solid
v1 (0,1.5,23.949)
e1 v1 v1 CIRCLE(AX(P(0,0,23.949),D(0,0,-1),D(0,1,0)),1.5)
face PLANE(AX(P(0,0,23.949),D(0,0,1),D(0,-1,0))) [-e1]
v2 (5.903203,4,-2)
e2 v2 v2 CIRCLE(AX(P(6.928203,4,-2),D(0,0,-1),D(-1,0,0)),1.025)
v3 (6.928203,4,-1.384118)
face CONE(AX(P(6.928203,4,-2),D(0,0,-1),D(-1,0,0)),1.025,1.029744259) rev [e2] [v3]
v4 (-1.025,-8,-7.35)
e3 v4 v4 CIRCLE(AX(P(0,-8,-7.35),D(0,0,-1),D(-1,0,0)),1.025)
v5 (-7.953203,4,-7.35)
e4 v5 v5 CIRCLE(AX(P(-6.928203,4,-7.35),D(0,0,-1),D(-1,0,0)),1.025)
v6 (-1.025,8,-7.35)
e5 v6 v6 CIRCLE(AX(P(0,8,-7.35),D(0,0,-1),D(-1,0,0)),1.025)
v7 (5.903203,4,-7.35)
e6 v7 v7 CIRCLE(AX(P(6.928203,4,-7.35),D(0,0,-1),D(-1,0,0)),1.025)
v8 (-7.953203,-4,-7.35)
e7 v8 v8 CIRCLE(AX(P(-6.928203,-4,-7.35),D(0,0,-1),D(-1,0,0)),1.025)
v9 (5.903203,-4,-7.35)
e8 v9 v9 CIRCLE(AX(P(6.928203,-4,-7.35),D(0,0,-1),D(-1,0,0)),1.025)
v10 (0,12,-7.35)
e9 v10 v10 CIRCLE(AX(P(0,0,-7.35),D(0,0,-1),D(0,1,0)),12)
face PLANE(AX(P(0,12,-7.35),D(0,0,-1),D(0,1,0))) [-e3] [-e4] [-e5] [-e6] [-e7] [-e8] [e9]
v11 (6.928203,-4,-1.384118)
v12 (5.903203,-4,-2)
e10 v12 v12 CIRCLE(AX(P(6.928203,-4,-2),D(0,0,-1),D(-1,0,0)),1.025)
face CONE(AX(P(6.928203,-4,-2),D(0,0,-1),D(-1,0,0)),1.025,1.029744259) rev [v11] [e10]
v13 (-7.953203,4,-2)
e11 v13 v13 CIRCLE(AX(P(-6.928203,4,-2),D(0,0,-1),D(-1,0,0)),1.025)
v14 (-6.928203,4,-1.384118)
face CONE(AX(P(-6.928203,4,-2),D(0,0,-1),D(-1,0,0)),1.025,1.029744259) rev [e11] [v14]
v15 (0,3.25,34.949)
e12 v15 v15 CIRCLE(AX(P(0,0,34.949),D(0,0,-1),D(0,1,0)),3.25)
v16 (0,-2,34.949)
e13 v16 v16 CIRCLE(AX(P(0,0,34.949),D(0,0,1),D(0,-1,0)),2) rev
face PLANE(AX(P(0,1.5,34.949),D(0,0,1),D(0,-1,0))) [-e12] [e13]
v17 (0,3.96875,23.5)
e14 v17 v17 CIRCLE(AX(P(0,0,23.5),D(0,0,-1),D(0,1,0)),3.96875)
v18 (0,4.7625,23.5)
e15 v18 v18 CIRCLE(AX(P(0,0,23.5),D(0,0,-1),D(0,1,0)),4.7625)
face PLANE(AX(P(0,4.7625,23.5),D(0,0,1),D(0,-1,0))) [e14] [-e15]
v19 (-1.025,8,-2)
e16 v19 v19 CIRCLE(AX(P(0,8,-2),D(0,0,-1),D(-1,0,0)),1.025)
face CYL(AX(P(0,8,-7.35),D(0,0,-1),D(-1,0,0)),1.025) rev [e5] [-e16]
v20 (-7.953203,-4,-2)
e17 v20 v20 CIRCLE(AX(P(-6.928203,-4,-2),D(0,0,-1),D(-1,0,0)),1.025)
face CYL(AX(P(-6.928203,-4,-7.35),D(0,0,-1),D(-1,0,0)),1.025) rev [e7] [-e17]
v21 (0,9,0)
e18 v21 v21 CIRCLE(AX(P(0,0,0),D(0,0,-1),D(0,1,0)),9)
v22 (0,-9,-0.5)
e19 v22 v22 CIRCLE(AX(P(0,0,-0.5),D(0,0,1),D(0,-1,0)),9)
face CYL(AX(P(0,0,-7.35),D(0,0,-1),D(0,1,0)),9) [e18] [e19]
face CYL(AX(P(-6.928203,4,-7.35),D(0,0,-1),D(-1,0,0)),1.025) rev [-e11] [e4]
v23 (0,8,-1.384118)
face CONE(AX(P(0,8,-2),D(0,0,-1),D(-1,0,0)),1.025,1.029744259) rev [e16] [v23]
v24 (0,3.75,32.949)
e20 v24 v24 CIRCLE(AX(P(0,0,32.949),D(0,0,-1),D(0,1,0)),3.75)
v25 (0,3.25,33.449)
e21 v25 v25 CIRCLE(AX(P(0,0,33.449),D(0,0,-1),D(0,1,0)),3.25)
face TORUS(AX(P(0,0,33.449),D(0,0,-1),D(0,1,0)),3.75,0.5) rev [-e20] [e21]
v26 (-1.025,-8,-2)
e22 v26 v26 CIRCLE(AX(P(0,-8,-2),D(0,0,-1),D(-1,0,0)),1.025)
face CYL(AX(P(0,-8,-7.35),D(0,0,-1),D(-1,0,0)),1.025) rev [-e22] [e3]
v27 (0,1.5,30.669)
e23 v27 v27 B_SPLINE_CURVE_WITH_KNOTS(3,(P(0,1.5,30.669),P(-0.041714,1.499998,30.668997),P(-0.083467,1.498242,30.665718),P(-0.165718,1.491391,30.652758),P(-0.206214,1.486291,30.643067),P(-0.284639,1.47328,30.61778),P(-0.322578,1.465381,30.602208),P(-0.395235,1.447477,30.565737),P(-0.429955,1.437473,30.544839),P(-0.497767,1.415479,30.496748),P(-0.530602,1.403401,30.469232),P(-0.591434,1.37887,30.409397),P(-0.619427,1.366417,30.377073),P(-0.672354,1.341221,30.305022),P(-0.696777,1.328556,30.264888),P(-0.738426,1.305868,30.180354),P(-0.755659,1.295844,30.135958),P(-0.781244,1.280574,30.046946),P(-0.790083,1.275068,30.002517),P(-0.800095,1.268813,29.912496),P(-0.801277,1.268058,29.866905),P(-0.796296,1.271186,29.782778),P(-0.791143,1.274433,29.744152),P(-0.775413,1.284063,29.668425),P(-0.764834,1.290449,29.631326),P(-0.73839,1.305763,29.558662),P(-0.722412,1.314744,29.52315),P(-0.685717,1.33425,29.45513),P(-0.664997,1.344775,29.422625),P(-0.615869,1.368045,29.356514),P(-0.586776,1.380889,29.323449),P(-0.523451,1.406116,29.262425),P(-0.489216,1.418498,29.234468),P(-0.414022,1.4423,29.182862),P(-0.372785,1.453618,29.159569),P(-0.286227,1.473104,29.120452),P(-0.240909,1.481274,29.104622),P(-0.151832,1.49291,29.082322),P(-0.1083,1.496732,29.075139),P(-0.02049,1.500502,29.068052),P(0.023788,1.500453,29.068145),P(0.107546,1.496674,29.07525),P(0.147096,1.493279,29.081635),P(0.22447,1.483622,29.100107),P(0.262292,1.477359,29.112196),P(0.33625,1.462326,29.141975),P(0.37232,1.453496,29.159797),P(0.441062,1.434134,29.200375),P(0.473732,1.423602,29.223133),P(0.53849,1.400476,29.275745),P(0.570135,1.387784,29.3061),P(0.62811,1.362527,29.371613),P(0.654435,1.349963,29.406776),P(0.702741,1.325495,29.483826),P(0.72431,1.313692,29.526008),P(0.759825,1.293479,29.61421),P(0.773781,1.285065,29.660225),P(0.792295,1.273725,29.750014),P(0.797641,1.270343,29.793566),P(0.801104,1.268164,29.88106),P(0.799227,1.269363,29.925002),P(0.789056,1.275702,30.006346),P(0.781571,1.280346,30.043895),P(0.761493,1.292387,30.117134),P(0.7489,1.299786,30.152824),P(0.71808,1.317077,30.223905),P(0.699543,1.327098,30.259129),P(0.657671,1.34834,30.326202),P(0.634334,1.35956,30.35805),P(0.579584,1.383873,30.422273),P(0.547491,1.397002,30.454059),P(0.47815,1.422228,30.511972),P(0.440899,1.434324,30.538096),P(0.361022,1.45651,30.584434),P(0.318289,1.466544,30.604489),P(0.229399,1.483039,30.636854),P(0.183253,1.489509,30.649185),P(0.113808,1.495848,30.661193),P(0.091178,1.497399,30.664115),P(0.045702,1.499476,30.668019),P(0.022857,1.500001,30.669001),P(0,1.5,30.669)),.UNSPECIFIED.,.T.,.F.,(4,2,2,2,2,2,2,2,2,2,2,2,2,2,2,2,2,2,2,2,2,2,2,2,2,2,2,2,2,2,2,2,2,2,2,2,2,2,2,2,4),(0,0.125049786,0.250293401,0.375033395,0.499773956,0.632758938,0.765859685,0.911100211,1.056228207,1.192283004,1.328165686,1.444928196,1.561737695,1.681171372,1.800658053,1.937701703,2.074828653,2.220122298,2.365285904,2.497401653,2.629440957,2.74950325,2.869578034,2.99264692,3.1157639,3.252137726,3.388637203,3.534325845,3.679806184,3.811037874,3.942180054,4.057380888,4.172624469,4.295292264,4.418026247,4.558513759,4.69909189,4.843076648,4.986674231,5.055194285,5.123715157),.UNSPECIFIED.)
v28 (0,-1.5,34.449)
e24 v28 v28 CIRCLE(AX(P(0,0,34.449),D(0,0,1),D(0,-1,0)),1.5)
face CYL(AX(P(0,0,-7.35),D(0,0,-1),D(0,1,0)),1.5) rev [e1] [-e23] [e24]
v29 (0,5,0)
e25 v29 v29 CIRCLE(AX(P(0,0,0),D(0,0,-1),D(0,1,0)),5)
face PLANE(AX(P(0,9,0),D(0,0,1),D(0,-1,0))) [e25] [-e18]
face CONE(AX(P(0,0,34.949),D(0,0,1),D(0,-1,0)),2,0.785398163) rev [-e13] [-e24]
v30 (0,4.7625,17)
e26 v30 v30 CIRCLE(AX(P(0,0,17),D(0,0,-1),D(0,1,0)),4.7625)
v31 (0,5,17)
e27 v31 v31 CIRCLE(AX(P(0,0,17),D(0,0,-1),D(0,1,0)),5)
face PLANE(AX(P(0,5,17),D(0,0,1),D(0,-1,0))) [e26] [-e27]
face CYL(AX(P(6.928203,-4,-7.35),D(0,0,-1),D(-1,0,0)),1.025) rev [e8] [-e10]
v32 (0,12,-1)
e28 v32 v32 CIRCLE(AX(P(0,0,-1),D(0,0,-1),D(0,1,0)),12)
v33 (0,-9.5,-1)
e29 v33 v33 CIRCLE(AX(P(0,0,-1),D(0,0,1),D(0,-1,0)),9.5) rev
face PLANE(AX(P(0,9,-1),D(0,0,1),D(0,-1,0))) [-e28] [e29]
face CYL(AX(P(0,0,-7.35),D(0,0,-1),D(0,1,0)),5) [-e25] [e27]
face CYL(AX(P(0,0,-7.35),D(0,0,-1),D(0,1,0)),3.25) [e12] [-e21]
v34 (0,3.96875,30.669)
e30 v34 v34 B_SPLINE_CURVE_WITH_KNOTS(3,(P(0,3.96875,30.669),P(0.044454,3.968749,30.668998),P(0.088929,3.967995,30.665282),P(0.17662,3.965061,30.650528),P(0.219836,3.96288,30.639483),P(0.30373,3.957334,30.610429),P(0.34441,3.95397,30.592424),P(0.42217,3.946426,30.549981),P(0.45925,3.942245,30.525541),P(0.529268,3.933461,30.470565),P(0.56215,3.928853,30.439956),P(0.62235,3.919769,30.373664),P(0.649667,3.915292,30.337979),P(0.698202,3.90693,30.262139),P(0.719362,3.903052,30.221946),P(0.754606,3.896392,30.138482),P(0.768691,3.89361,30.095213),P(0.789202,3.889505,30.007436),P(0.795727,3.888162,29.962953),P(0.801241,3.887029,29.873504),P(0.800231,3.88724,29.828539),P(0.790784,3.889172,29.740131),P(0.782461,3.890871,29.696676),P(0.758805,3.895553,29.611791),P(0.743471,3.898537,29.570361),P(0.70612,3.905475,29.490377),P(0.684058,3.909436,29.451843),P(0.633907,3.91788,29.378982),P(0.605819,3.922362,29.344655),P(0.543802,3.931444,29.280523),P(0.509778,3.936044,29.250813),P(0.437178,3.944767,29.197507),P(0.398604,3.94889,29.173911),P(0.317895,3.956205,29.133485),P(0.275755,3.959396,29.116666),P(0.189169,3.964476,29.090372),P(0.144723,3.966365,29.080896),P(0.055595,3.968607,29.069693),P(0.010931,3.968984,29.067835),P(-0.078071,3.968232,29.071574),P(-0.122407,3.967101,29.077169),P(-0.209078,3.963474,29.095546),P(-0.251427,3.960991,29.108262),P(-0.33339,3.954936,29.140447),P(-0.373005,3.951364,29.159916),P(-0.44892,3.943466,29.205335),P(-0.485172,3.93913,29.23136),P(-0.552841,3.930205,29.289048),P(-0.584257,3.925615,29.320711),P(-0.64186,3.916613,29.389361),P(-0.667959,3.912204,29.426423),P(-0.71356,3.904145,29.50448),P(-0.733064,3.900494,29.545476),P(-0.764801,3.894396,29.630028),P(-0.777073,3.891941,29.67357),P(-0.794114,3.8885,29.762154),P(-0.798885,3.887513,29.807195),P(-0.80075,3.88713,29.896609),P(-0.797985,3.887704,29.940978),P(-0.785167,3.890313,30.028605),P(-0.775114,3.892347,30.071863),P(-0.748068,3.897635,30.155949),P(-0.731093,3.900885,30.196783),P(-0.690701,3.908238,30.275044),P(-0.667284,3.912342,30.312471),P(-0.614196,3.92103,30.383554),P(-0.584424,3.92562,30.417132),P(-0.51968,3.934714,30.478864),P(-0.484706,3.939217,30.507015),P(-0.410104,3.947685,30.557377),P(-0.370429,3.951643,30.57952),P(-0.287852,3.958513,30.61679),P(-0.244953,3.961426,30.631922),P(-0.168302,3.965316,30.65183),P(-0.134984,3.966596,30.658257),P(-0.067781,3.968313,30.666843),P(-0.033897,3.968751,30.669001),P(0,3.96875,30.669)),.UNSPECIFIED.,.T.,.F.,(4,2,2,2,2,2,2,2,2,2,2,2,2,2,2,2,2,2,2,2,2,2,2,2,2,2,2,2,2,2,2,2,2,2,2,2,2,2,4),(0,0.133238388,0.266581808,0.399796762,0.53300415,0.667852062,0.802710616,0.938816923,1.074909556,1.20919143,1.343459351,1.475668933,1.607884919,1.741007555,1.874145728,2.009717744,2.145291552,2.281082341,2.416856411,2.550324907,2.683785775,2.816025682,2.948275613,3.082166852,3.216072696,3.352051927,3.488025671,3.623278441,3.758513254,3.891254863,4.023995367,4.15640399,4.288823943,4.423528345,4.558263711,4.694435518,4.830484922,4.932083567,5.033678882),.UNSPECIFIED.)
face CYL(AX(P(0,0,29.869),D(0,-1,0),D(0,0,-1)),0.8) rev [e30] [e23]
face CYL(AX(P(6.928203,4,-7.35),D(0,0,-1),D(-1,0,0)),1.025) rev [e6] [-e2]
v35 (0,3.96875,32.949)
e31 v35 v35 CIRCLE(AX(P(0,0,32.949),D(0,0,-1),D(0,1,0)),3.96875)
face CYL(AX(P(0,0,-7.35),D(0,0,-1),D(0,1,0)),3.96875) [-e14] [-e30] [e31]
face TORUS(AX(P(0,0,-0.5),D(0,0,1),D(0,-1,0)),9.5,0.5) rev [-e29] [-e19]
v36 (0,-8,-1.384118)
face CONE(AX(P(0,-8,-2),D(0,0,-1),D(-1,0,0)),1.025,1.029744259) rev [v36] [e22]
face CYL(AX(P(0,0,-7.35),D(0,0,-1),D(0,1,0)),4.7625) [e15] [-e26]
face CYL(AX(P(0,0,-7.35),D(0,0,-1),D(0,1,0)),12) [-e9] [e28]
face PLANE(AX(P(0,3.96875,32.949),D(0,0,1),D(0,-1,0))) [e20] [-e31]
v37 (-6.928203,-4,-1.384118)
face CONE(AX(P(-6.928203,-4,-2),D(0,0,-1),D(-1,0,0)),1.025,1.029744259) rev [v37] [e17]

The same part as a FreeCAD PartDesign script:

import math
import FreeCAD as App
import Part
import Sketcher
Q = App.Units.Quantity


def edges_at(feature, points):
    """Names of the edges that pass closest to the given points."""
    edges = feature.Shape.Edges
    near = lambda p: min(range(len(edges)), key=lambda i: edges[i].distToShape(Part.Vertex(*p))[0])
    return sorted({f"Edge{near(p) + 1}" for p in points})


def add_polygon(sketch, points):
    """Adds a closed chain of lines whose ends are joined by coincident constraints."""
    first, n = sketch.GeometryCount, len(points)
    for a, b in zip(points, points[1:] + points[:1]):
        sketch.addGeometry(Part.LineSegment(App.Vector(*a, 0), App.Vector(*b, 0)), False)
    for i in range(n):
        sketch.addConstraint(Sketcher.Constraint("Coincident", first + i, 2, first + (i + 1) % n, 1))

doc = App.newDocument("Part")
body = doc.addObject("PartDesign::Body", "Body")

# Sketch on YZ plane
sketch1 = body.newObject("Sketcher::SketchObject", "Sketch")
sketch1.AttachmentSupport = (doc.getObject("YZ_Plane"), [""])
sketch1.MapMode = "FlatFace"
sketch1.addGeometry(Part.LineSegment(App.Vector(1.5, 23.95, 0), App.Vector(0, 23.95, 0)), False)
sketch1.addGeometry(Part.LineSegment(App.Vector(0, 23.95, 0), App.Vector(0, -7.35, 0)), False)
sketch1.addGeometry(Part.LineSegment(App.Vector(0, -7.35, 0), App.Vector(12, -7.35, 0)), False)
sketch1.addGeometry(Part.LineSegment(App.Vector(12, -7.35, 0), App.Vector(12, -1, 0)), False)
sketch1.addGeometry(Part.LineSegment(App.Vector(12, -1, 0), App.Vector(9, -1, 0)), False)
sketch1.addGeometry(Part.LineSegment(App.Vector(9, -1, 0), App.Vector(9, 0, 0)), False)
sketch1.addGeometry(Part.LineSegment(App.Vector(9, 0, 0), App.Vector(5, 0, 0)), False)
sketch1.addGeometry(Part.LineSegment(App.Vector(5, 0, 0), App.Vector(5, 17, 0)), False)
sketch1.addGeometry(Part.LineSegment(App.Vector(5, 17, 0), App.Vector(4.76, 17, 0)), False)
sketch1.addGeometry(Part.LineSegment(App.Vector(4.76, 17, 0), App.Vector(4.76, 23.5, 0)), False)
sketch1.addGeometry(Part.LineSegment(App.Vector(4.76, 23.5, 0), App.Vector(3.97, 23.5, 0)), False)
sketch1.addGeometry(Part.LineSegment(App.Vector(3.97, 23.5, 0), App.Vector(3.97, 32.95, 0)), False)
sketch1.addGeometry(Part.LineSegment(App.Vector(3.97, 32.95, 0), App.Vector(3.75, 32.95, 0)), False)
sketch1.addGeometry(Part.ArcOfCircle(Part.Circle(App.Vector(3.75, 33.45, 0), App.Vector(0, 0, 1), 0.5), math.radians(180), math.radians(270)), False)
sketch1.addGeometry(Part.LineSegment(App.Vector(3.25, 33.45, 0), App.Vector(3.25, 34.95, 0)), False)
sketch1.addGeometry(Part.LineSegment(App.Vector(3.25, 34.95, 0), App.Vector(1.5, 34.95, 0)), False)
sketch1.addGeometry(Part.LineSegment(App.Vector(1.5, 34.95, 0), App.Vector(1.5, 23.95, 0)), False)
sketch1.addConstraint(Sketcher.Constraint("Coincident", 0, 2, 1, 1))
sketch1.addConstraint(Sketcher.Constraint("Coincident", 1, 2, 2, 1))
sketch1.addConstraint(Sketcher.Constraint("Coincident", 2, 2, 3, 1))
sketch1.addConstraint(Sketcher.Constraint("Coincident", 3, 2, 4, 1))
sketch1.addConstraint(Sketcher.Constraint("Coincident", 4, 2, 5, 1))
sketch1.addConstraint(Sketcher.Constraint("Coincident", 5, 2, 6, 1))
sketch1.addConstraint(Sketcher.Constraint("Coincident", 6, 2, 7, 1))
sketch1.addConstraint(Sketcher.Constraint("Coincident", 7, 2, 8, 1))
sketch1.addConstraint(Sketcher.Constraint("Coincident", 8, 2, 9, 1))
sketch1.addConstraint(Sketcher.Constraint("Coincident", 9, 2, 10, 1))
sketch1.addConstraint(Sketcher.Constraint("Coincident", 10, 2, 11, 1))
sketch1.addConstraint(Sketcher.Constraint("Coincident", 11, 2, 12, 1))
sketch1.addConstraint(Sketcher.Constraint("Tangent", 12, 2, 13, 2))
sketch1.addConstraint(Sketcher.Constraint("Tangent", 13, 1, 14, 1))
sketch1.addConstraint(Sketcher.Constraint("Coincident", 14, 2, 15, 1))
sketch1.addConstraint(Sketcher.Constraint("Coincident", 15, 2, 16, 1))
sketch1.addConstraint(Sketcher.Constraint("Coincident", 16, 2, 0, 1))
sketch1.addConstraint(Sketcher.Constraint("Horizontal", 0))
sketch1.addConstraint(Sketcher.Constraint("Vertical", 1))
sketch1.addConstraint(Sketcher.Constraint("Horizontal", 2))
sketch1.addConstraint(Sketcher.Constraint("Vertical", 3))
sketch1.addConstraint(Sketcher.Constraint("Horizontal", 4))
sketch1.addConstraint(Sketcher.Constraint("Vertical", 5))
sketch1.addConstraint(Sketcher.Constraint("Horizontal", 6))
sketch1.addConstraint(Sketcher.Constraint("Vertical", 7))
sketch1.addConstraint(Sketcher.Constraint("Horizontal", 8))
sketch1.addConstraint(Sketcher.Constraint("Vertical", 9))
sketch1.addConstraint(Sketcher.Constraint("Horizontal", 10))
sketch1.addConstraint(Sketcher.Constraint("Vertical", 11))
sketch1.addConstraint(Sketcher.Constraint("Horizontal", 12))
sketch1.addConstraint(Sketcher.Constraint("Vertical", 14))
sketch1.addConstraint(Sketcher.Constraint("Horizontal", 15))
sketch1.addConstraint(Sketcher.Constraint("Vertical", 16))
sketch1.addConstraint(Sketcher.Constraint("PointOnObject", 0, 2, -2))
sketch1.addConstraint(Sketcher.Constraint("PointOnObject", 5, 2, -1))
sketch1.addConstraint(Sketcher.Constraint("Equal", 0, 14))
sketch1.addConstraint(Sketcher.Constraint("Radius", 13, Q("0.5 mm")))
sketch1.addConstraint(Sketcher.Constraint("DistanceX", 2, 1, 2, 2, Q("12 mm")))
sketch1.addConstraint(Sketcher.Constraint("DistanceX", 4, 2, 4, 1, Q("3 mm")))
sketch1.addConstraint(Sketcher.Constraint("DistanceX", 6, 2, 6, 1, Q("4 mm")))
sketch1.addConstraint(Sketcher.Constraint("DistanceY", 5, 1, 5, 2, Q("1 mm")))
sketch1.addConstraint(Sketcher.Constraint("DistanceY", 7, 1, 7, 2, Q("17 mm")))
sketch1.addConstraint(Sketcher.Constraint("DistanceY", 16, 2, 16, 1, Q("11 mm")))
sketch1.addConstraint(Sketcher.Constraint("DistanceX", 0, 2, 0, 1, Q("1.5 mm")))
sketch1.addConstraint(Sketcher.Constraint("DistanceY", 9, 1, 9, 2, Q("6.5 mm")))
sketch1.addConstraint(Sketcher.Constraint("DistanceX", 15, 2, 15, 1, Q("1.75 mm")))
sketch1.addConstraint(Sketcher.Constraint("DistanceY", 3, 1, 3, 2, Q("6.35 mm")))
sketch1.addConstraint(Sketcher.Constraint("DistanceY", 1, 2, 1, 1, Q("31.299 mm")))
sketch1.addConstraint(Sketcher.Constraint("DistanceX", 8, 2, 8, 1, Q("0.2375 mm")))
sketch1.addConstraint(Sketcher.Constraint("DistanceX", 10, 2, 10, 1, Q("0.79375 mm")))
revolution = body.newObject("PartDesign::Revolution", "Revolution")
revolution.Profile = sketch1
revolution.ReferenceAxis = (sketch1, ["V_Axis"])
revolution.Angle = 360

# Sketch on YZ plane
sketch2 = body.newObject("Sketcher::SketchObject", "Sketch001")
sketch2.AttachmentSupport = (doc.getObject("YZ_Plane"), [""])
sketch2.MapMode = "FlatFace"
add_polygon(sketch2, [(12, 29.9), (0, 29.9), (0, 29.1), (12, 29.1)])  # lines 0-3
sketch2.addGeometry(Part.LineSegment(App.Vector(0, 29.9, 0), App.Vector(12, 29.9, 0)), True)  # axis
sketch2.addConstraint(Sketcher.Constraint("Horizontal", 0))
sketch2.addConstraint(Sketcher.Constraint("Vertical", 1))
sketch2.addConstraint(Sketcher.Constraint("Horizontal", 2))
sketch2.addConstraint(Sketcher.Constraint("Vertical", 3))
sketch2.addConstraint(Sketcher.Constraint("Horizontal", 4))
sketch2.addConstraint(Sketcher.Constraint("Coincident", 4, 1, 0, 2))
sketch2.addConstraint(Sketcher.Constraint("PointOnObject", 0, 2, -2))
sketch2.addConstraint(Sketcher.Constraint("Vertical", 2, 2, 4, 2))
sketch2.addConstraint(Sketcher.Constraint("DistanceX", 0, 2, 0, 1, Q("12 mm")))
sketch2.addConstraint(Sketcher.Constraint("DistanceY", 1, 2, 1, 1, Q("0.8 mm")))
sketch2.addConstraint(Sketcher.Constraint("DistanceY", -1, 1, 0, 2, Q("29.869 mm")))
groove = body.newObject("PartDesign::Groove", "Groove")
groove.Profile = sketch2
groove.ReferenceAxis = (sketch2, ["Axis0"])
groove.Angle = 360

# Sketch on XY plane
sketch3 = body.newObject("Sketcher::SketchObject", "Sketch002")
sketch3.AttachmentSupport = (doc.getObject("XY_Plane"), [""])
sketch3.MapMode = "FlatFace"
sketch3.AttachmentOffset = App.Placement(App.Vector(0, 0, -7.35), App.Rotation())
sketch3.addGeometry(Part.Circle(App.Vector(0, 8, 0), App.Vector(0, 0, 1), 1), False)
sketch3.addGeometry(Part.Circle(App.Vector(6.9, 4, 0), App.Vector(0, 0, 1), 1), False)
sketch3.addGeometry(Part.Circle(App.Vector(6.9, -4, 0), App.Vector(0, 0, 1), 1), False)
sketch3.addGeometry(Part.Circle(App.Vector(0, -8, 0), App.Vector(0, 0, 1), 1), False)
sketch3.addGeometry(Part.Circle(App.Vector(-6.9, -4, 0), App.Vector(0, 0, 1), 1), False)
sketch3.addGeometry(Part.Circle(App.Vector(-6.9, 4, 0), App.Vector(0, 0, 1), 1), False)
sketch3.addConstraint(Sketcher.Constraint("Equal", 0, 1))
sketch3.addConstraint(Sketcher.Constraint("Equal", 1, 2))
sketch3.addConstraint(Sketcher.Constraint("Equal", 2, 3))
sketch3.addConstraint(Sketcher.Constraint("Equal", 3, 4))
sketch3.addConstraint(Sketcher.Constraint("Equal", 4, 5))
sketch3.addConstraint(Sketcher.Constraint("Symmetric", 0, 3, 3, 3, -1, 1))
sketch3.addConstraint(Sketcher.Constraint("Symmetric", 1, 3, 4, 3, -1, 1))
sketch3.addConstraint(Sketcher.Constraint("Symmetric", 2, 3, 5, 3, -1, 1))
sketch3.addConstraint(Sketcher.Constraint("Symmetric", 2, 3, 4, 3, -2))
sketch3.addConstraint(Sketcher.Constraint("PointOnObject", 0, 3, -2))
sketch3.addConstraint(Sketcher.Constraint("Diameter", 0, Q("2.05 mm")))
sketch3.addConstraint(Sketcher.Constraint("DistanceY", -1, 1, 0, 3, Q("8 mm")))
sketch3.addConstraint(Sketcher.Constraint("DistanceY", -1, 1, 1, 3, Q("4 mm")))
sketch3.addConstraint(Sketcher.Constraint("DistanceX", -1, 1, 1, 3, Q("6.928203 mm")))
doc.recompute()
hole = body.newObject("PartDesign::Hole", "Hole")
hole.Profile = sketch3
hole.ThreadType = "None"
hole.Diameter = 2.05
hole.DepthType = "Dimension"
hole.Depth = 5.35
hole.DrillPoint = "Angled"
hole.DrillPointAngle = 118
hole.Reversed = True
doc.recompute()

fillet = body.newObject("PartDesign::Fillet", "Fillet")
fillet.Base = (hole, edges_at(hole, [(0, -9, -1)]))
fillet.Radius = 0.5
doc.recompute()

chamfer = body.newObject("PartDesign::Chamfer", "Chamfer")
chamfer.Base = (fillet, edges_at(fillet, [(0, -1.5, 34.949)]))
chamfer.Size = 0.5

doc.recompute()
